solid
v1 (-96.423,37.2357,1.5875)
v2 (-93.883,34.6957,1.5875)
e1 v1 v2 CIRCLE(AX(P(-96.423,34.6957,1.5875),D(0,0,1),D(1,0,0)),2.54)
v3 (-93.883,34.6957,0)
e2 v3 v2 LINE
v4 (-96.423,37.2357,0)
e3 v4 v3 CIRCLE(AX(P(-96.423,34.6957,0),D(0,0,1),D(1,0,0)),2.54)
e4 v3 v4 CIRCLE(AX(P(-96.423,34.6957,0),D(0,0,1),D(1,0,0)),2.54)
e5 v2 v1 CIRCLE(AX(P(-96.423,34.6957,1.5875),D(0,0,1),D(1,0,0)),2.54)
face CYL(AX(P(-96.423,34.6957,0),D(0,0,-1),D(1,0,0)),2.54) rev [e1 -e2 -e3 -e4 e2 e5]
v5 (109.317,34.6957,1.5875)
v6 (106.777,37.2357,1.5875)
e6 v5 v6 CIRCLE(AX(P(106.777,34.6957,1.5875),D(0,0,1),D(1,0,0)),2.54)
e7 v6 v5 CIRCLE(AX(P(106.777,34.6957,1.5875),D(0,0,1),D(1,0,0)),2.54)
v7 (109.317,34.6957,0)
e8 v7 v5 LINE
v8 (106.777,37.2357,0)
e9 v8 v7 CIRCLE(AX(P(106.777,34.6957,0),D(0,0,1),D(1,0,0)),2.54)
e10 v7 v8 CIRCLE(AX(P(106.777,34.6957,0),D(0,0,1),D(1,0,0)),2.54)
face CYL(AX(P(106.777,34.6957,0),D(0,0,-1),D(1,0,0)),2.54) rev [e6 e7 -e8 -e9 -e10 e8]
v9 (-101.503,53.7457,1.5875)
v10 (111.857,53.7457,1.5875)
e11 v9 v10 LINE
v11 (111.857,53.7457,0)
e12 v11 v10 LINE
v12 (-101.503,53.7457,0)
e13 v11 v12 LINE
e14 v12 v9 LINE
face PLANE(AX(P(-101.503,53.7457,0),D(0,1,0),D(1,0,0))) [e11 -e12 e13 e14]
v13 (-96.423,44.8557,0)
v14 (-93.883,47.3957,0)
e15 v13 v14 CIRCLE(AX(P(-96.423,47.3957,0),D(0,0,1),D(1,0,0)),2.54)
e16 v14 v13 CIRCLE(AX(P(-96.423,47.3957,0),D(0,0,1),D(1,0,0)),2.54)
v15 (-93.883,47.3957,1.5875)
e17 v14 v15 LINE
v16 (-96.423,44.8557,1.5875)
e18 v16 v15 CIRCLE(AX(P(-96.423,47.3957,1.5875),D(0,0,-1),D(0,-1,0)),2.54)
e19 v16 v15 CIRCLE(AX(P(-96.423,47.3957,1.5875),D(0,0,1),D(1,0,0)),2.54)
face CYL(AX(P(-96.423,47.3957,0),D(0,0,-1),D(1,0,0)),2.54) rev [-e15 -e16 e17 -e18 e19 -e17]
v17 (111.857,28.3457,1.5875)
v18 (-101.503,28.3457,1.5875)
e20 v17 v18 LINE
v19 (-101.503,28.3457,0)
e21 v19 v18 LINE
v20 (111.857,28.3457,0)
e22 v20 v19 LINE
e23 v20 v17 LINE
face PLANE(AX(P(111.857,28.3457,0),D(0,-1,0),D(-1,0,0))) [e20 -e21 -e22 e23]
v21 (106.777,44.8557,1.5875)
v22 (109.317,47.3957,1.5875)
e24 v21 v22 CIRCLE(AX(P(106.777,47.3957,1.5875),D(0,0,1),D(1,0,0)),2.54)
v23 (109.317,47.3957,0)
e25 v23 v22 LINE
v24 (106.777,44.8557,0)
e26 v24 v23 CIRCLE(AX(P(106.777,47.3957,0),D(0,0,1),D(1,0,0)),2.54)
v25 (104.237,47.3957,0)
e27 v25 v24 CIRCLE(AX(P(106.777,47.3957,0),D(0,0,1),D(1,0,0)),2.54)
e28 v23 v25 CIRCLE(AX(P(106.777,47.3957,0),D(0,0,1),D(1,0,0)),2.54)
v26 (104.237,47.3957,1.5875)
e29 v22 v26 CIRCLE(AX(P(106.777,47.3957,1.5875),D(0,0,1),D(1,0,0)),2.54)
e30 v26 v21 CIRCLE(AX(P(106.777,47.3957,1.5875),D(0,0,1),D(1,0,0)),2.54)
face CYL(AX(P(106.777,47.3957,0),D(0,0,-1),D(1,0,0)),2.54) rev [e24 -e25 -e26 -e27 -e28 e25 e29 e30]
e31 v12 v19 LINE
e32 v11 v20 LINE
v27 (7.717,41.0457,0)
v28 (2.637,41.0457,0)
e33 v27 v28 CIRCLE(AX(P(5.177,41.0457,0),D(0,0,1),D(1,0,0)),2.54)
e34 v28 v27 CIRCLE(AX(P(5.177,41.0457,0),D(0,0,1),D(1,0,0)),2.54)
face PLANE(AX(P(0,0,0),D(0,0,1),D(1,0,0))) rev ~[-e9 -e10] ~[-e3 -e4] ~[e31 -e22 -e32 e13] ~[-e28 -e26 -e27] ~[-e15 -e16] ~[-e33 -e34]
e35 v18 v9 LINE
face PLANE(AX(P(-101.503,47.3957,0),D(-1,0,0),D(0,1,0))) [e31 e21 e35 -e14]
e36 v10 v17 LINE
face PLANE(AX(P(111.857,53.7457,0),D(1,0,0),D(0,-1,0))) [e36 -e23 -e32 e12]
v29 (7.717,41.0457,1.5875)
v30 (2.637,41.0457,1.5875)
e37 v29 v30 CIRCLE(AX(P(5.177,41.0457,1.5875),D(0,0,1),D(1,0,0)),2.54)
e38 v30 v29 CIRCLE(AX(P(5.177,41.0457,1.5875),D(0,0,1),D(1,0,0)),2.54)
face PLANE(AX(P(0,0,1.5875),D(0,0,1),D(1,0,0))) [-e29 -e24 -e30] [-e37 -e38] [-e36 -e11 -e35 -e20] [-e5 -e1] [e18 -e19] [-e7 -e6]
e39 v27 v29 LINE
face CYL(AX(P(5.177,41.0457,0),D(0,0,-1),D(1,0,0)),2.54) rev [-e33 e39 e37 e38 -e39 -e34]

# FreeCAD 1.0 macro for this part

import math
import FreeCAD as App
import Part
import Sketcher
from FreeCAD import Vector
Q = App.Units.Quantity


def add_polygon(sketch, points):
    """Adds a closed chain of lines whose ends are joined by coincident constraints."""
    first, n = sketch.GeometryCount, len(points)
    for a, b in zip(points, points[1:] + points[:1]):
        sketch.addGeometry(Part.LineSegment(App.Vector(*a, 0), App.Vector(*b, 0)), False)
    for i in range(n):
        sketch.addConstraint(Sketcher.Constraint("Coincident", first + i, 2, first + (i + 1) % n, 1))

doc = App.newDocument("Part")
params = doc.addObject("Spreadsheet::Sheet", "Params")
for row, (alias, value) in enumerate([
    ("sketch1_diameter", "0.2 in"),
    ("sketch1_height", "1 in"),
    ("sketch1_width", "8.4 in"),
    ("pad1_length", "0.0625 in"),
], start=1):
    params.set(f"A{row}", alias)
    params.set(f"B{row}", "=" + value)
    params.setAlias(f"B{row}", alias)

body = doc.addObject("PartDesign::Body", "Body")

# Sketch on XY plane
sketch1 = doc.addObject("Sketcher::SketchObject", "Sketch")
body.addObject(sketch1)
sketch1.AttachmentSupport = (doc.XY_Plane, [""])
sketch1.MapMode = "FlatFace"
add_polygon(sketch1, [(-101.503, 53.7457), (-101.503, 28.3457), (111.857, 28.3457), (111.857, 53.7457)])  # lines 0-3
sketch1.addGeometry(Part.ArcOfCircle(Part.Circle(Vector(-96.423, 47.3957, 0), Vector(0, 0, 1), 2.54), math.radians(-90), math.radians(0)), False)  # 4
sketch1.addGeometry(Part.ArcOfCircle(Part.Circle(Vector(-96.423, 47.3957, 0), Vector(0, 0, 1), 2.54), math.radians(0), math.radians(270)), False)  # 5
sketch1.addGeometry(Part.Circle(Vector(-96.423, 34.6957, 0), Vector(0, 0, 1), 2.54), False)  # 6
sketch1.addGeometry(Part.Circle(Vector(5.177, 41.0457, 0), Vector(0, 0, 1), 2.54), False)  # 7
sketch1.addGeometry(Part.Circle(Vector(106.777, 34.6957, 0), Vector(0, 0, 1), 2.54), False)  # 8
sketch1.addGeometry(Part.ArcOfCircle(Part.Circle(Vector(106.777, 47.3957, 0), Vector(0, 0, 1), 2.54), math.radians(180), math.radians(270)), False)  # 9
sketch1.addGeometry(Part.ArcOfCircle(Part.Circle(Vector(106.777, 47.3957, 0), Vector(0, 0, 1), 2.54), math.radians(-90), math.radians(180)), False)  # 10
sketch1.addConstraint(Sketcher.Constraint("Tangent", 4, 1, 5, 2))
sketch1.addConstraint(Sketcher.Constraint("Coincident", 5, 1, 4, 2))
sketch1.addConstraint(Sketcher.Constraint("Tangent", 9, 1, 10, 2))
sketch1.addConstraint(Sketcher.Constraint("Coincident", 10, 1, 9, 2))
sketch1.addConstraint(Sketcher.Constraint("Vertical", 0))
sketch1.addConstraint(Sketcher.Constraint("Horizontal", 1))
sketch1.addConstraint(Sketcher.Constraint("Vertical", 2))
sketch1.addConstraint(Sketcher.Constraint("Horizontal", 3))
sketch1.addConstraint(Sketcher.Constraint("Equal", 5, 6))
sketch1.addConstraint(Sketcher.Constraint("Equal", 6, 7))
sketch1.addConstraint(Sketcher.Constraint("Equal", 7, 8))
sketch1.addConstraint(Sketcher.Constraint("Equal", 8, 9))
sketch1.addConstraint(Sketcher.Constraint("Horizontal", 6, 3, 8, 3))
sketch1.addConstraint(Sketcher.Constraint("Horizontal", 5, 3, 9, 3))
sketch1.addConstraint(Sketcher.Constraint("Horizontal", 10, 3, 5, 1))
sketch1.addConstraint(Sketcher.Constraint("Horizontal", 5, 1, 9, 1))
sketch1.addConstraint(Sketcher.Constraint("Vertical", 5, 3, 6, 3))
sketch1.addConstraint(Sketcher.Constraint("Vertical", 8, 3, 9, 3))
sketch1.addConstraint(Sketcher.Constraint("Vertical", 6, 3, 4, 1))
sketch1.addConstraint(Sketcher.Constraint("Vertical", 9, 3, 10, 1))
sketch1.addConstraint(Sketcher.Constraint("Diameter", 6, Q("0.2 in")))
sketch1.addConstraint(Sketcher.Constraint("DistanceY", 0, 2, 0, 1, Q("1 in")))
sketch1.addConstraint(Sketcher.Constraint("DistanceX", 1, 1, 1, 2, Q("8.4 in")))
sketch1.addConstraint(Sketcher.Constraint("DistanceX", 6, 3, 8, 3, Q("8 in")))
sketch1.addConstraint(Sketcher.Constraint("DistanceY", 6, 3, 4, 3, Q("0.5 in")))
sketch1.addConstraint(Sketcher.Constraint("DistanceX", 0, 2, 6, 3, Q("0.2 in")))
sketch1.addConstraint(Sketcher.Constraint("DistanceY", 0, 2, 7, 3, Q("0.5 in")))
sketch1.addConstraint(Sketcher.Constraint("DistanceY", 7, 3, 4, 3, Q("0.25 in")))
sketch1.addConstraint(Sketcher.Constraint("DistanceX", 4, 3, 7, 3, Q("4 in")))
sketch1.addConstraint(Sketcher.Constraint("DistanceX", 4, 3, -1, 1, 96.423))
sketch1.addConstraint(Sketcher.Constraint("DistanceY", -1, 1, 4, 3, 47.3957))
sketch1.setExpression("Constraints[24]", "Params.sketch1_diameter")
sketch1.setExpression("Constraints[25]", "Params.sketch1_height")
sketch1.setExpression("Constraints[26]", "Params.sketch1_width")
pad1 = doc.addObject("PartDesign::Pad", "Pad")
body.addObject(pad1)
pad1.Profile = sketch1
pad1.setExpression("Length", "Params.pad1_length")

doc.recompute()
